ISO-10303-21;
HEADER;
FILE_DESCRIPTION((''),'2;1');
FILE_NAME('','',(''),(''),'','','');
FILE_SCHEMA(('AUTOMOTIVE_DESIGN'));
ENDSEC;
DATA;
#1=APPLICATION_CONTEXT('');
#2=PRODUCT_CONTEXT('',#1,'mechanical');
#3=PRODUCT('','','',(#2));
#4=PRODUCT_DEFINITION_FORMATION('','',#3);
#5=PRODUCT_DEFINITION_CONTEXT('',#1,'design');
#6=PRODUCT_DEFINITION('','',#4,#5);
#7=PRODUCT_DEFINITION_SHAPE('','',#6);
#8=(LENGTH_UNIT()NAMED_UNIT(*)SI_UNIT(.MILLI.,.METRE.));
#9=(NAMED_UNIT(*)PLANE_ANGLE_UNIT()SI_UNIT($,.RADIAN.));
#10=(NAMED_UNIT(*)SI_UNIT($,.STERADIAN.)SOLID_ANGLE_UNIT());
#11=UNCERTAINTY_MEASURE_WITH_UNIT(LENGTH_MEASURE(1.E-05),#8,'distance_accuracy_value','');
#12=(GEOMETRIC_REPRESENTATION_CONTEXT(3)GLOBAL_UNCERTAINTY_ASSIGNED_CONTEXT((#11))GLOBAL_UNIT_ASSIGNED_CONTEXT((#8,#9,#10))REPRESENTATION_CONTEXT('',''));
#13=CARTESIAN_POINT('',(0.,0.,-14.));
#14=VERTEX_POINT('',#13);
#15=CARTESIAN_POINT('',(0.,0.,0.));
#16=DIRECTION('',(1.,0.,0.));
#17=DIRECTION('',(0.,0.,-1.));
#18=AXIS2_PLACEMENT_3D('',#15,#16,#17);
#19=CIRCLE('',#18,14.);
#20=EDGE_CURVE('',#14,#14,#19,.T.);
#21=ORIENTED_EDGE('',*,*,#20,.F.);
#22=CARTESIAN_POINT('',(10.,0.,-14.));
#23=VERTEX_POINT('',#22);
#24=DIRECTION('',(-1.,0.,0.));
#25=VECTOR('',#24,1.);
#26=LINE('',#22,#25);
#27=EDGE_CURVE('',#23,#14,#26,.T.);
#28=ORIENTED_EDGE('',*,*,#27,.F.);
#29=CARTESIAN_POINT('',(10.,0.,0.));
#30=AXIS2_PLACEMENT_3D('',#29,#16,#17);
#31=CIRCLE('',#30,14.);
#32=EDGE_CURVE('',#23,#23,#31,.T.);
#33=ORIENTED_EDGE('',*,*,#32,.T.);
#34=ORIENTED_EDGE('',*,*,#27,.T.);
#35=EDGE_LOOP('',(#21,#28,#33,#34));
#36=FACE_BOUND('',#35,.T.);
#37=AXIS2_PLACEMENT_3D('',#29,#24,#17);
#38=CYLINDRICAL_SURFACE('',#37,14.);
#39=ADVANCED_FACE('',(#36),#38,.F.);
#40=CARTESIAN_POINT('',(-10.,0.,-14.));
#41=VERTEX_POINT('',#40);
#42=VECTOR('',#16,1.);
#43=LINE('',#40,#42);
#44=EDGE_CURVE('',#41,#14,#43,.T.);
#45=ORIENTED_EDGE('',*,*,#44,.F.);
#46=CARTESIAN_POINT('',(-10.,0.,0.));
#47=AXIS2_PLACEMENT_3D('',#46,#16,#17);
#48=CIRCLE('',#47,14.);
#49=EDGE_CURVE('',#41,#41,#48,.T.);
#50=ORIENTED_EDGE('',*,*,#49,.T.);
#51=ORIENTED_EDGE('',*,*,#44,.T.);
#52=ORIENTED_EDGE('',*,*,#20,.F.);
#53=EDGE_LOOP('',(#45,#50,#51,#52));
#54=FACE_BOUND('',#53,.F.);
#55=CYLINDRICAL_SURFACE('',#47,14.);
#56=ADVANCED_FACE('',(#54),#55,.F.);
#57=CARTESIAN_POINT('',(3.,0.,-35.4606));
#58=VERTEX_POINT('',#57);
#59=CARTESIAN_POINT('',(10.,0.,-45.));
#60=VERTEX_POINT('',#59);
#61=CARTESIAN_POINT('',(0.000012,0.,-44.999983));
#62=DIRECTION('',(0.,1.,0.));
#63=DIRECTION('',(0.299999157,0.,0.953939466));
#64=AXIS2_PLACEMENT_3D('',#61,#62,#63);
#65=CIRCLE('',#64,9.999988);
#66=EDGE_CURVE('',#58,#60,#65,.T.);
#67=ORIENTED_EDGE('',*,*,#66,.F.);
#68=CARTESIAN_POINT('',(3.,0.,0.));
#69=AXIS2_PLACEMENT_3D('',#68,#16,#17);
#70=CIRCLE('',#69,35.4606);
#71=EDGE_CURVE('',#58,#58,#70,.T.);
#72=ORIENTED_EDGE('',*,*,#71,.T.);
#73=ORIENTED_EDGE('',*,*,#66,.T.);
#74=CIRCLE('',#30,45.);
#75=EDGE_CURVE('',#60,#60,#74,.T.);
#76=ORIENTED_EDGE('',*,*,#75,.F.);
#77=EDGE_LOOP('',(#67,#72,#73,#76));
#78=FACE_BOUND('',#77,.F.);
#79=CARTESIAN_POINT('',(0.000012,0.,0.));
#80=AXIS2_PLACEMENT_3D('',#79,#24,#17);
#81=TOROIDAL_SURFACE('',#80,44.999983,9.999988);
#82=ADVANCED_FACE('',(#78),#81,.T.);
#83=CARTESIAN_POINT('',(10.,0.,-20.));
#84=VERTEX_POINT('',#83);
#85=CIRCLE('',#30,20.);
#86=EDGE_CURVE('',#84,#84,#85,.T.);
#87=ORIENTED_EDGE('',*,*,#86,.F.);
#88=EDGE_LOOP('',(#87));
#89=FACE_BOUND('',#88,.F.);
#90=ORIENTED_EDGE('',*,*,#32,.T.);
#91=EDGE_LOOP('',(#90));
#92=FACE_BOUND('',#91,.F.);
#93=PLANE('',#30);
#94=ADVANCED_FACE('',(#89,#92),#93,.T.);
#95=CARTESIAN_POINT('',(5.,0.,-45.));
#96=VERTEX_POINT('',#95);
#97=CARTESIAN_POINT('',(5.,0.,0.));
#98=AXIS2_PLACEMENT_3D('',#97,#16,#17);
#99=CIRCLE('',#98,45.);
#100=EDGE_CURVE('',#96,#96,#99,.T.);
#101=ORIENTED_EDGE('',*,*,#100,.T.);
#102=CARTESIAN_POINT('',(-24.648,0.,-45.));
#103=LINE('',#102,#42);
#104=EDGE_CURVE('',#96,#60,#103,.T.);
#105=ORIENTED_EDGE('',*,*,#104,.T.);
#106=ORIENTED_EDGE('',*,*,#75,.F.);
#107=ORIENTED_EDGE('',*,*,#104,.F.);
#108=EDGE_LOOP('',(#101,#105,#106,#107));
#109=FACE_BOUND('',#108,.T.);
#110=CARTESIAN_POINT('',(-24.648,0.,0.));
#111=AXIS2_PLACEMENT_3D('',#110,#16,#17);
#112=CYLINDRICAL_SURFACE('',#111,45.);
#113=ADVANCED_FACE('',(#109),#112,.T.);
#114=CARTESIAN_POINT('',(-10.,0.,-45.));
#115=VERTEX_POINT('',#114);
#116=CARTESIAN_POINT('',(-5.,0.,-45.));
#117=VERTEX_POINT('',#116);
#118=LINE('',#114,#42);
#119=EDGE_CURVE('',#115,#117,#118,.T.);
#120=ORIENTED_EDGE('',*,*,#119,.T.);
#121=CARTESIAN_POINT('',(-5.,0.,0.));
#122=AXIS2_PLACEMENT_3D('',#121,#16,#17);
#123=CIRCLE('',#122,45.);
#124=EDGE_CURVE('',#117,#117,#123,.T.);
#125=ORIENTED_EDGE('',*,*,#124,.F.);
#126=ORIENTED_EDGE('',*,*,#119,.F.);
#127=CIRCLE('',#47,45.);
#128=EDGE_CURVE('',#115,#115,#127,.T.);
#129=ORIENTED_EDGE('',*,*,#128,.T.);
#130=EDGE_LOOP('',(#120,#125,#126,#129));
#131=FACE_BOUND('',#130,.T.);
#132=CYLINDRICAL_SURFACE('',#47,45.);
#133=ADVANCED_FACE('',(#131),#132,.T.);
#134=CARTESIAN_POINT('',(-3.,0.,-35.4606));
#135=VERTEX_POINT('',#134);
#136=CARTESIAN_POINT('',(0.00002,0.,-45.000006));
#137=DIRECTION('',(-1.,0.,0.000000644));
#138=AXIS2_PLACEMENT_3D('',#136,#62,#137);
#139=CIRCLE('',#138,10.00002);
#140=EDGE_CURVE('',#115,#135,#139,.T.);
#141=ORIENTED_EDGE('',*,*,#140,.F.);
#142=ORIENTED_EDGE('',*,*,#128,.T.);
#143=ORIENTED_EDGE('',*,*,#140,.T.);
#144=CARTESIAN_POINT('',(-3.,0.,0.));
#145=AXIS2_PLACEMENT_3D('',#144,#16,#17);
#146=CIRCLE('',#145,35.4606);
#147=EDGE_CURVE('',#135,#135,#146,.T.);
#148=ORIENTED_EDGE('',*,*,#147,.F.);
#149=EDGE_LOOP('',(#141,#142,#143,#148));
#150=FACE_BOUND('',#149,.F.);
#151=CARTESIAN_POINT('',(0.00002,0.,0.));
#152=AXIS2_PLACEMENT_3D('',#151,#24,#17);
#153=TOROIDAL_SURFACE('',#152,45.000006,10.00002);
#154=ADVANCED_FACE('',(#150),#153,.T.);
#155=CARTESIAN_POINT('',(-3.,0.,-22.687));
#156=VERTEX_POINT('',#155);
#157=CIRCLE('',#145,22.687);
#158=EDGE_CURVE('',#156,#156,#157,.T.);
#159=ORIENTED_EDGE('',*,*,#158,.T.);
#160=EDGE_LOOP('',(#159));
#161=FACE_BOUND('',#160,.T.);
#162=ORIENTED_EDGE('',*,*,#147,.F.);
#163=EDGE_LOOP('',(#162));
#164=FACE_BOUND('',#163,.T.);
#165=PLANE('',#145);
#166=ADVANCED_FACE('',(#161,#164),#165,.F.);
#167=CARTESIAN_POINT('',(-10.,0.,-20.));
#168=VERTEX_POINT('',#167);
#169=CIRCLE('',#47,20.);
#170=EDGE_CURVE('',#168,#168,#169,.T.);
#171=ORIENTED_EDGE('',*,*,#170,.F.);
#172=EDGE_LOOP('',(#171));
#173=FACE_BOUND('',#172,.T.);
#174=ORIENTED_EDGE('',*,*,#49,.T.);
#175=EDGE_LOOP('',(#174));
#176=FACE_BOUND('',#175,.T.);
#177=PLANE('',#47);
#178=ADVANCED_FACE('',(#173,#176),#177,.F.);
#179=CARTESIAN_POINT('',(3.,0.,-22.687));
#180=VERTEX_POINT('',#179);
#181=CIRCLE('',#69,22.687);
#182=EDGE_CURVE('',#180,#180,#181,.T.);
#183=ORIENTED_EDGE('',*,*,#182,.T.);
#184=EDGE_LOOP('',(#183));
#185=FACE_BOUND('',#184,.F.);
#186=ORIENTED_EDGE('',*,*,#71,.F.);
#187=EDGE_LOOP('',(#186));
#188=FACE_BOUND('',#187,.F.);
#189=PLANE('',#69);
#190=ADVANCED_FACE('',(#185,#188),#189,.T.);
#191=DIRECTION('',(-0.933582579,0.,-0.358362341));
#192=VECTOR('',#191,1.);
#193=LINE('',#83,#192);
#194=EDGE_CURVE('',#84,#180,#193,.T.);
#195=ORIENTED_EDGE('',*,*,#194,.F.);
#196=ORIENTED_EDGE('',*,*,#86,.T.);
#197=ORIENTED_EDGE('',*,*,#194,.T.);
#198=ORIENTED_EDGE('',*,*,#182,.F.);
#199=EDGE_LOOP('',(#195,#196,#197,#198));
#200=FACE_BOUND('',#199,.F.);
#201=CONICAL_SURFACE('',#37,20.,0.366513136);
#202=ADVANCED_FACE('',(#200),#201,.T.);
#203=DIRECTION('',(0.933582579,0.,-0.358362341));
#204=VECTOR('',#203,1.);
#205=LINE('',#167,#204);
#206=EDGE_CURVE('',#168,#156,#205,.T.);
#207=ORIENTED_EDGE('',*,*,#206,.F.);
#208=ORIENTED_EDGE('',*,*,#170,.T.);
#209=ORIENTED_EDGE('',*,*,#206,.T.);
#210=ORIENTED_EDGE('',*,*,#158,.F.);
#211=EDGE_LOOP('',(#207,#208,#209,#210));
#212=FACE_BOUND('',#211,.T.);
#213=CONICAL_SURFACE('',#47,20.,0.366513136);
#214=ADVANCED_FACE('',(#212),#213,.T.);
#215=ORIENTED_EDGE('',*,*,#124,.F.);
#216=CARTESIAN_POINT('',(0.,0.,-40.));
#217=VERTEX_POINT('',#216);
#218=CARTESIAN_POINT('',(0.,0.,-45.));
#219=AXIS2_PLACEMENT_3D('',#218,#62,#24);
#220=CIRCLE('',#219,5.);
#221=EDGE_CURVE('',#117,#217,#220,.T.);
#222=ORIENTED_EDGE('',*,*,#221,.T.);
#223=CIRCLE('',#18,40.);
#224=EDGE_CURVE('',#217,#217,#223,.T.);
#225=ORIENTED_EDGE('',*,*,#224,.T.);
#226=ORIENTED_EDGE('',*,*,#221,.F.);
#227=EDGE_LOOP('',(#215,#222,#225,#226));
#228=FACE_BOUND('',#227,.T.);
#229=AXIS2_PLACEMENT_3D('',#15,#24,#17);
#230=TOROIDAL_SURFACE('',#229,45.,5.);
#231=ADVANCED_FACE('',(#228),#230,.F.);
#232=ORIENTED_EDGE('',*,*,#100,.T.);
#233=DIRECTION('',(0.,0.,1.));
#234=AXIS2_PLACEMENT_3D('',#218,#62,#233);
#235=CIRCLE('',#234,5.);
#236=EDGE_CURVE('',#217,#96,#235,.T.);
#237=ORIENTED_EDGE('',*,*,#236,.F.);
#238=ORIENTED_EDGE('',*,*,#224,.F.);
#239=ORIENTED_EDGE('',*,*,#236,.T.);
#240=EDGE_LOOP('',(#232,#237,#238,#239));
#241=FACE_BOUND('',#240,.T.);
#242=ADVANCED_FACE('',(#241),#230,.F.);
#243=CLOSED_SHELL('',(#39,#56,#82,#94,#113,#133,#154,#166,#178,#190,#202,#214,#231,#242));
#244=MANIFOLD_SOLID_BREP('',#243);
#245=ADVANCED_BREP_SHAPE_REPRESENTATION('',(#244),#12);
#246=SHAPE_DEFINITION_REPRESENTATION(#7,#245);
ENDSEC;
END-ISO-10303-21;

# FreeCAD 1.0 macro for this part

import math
import FreeCAD as App
import Part
import Sketcher
Q = App.Units.Quantity

doc = App.newDocument("Part")
body = doc.addObject("PartDesign::Body", "Body")

sketch1 = body.newObject("Sketcher::SketchObject", "Sketch")
sketch1.AttachmentSupport = (doc.getObject("XZ_Plane"), [""])
sketch1.MapMode = "FlatFace"
sketch1.addGeometry([
    Part.LineSegment(App.Vector(-10, -20, 0), App.Vector(-10, -14, 0)),
    Part.LineSegment(App.Vector(-10, -14, 0), App.Vector(10, -14, 0)),
    Part.LineSegment(App.Vector(10, -14, 0), App.Vector(10, -20, 0)),
    Part.LineSegment(App.Vector(10, -20, 0), App.Vector(3, -22.687, 0)),
    Part.LineSegment(App.Vector(3, -22.687, 0), App.Vector(3, -35.4606, 0)),
    Part.ArcOfCircle(Part.Circle(App.Vector(0, -45, 0), App.Vector(0, 0, 1), 10), math.radians(0), math.radians(72.542411)),
    Part.LineSegment(App.Vector(10, -45, 0), App.Vector(5, -45, 0)),
    Part.ArcOfCircle(Part.Circle(App.Vector(0, -45, 0), App.Vector(0, 0, 1), 5), math.radians(0), math.radians(180)),
    Part.LineSegment(App.Vector(-5, -45, 0), App.Vector(-10, -45, 0)),
    Part.ArcOfCircle(Part.Circle(App.Vector(0, -45, 0), App.Vector(0, 0, 1), 10.000008), math.radians(107.457589), math.radians(180)),
    Part.LineSegment(App.Vector(-3, -35.4606, 0), App.Vector(-3, -22.687, 0)),
    Part.LineSegment(App.Vector(-3, -22.687, 0), App.Vector(-10, -20, 0)),
], False)
sketch1.addConstraint([
    Sketcher.Constraint("Coincident", 0, 2, 1, 1),
    Sketcher.Constraint("Coincident", 1, 2, 2, 1),
    Sketcher.Constraint("Coincident", 2, 2, 3, 1),
    Sketcher.Constraint("Coincident", 3, 2, 4, 1),
    Sketcher.Constraint("Coincident", 4, 2, 5, 2),
    Sketcher.Constraint("Coincident", 5, 1, 6, 1),
    Sketcher.Constraint("Coincident", 6, 2, 7, 1),
    Sketcher.Constraint("Coincident", 7, 2, 8, 1),
    Sketcher.Constraint("Coincident", 8, 2, 9, 2),
    Sketcher.Constraint("Coincident", 9, 1, 10, 1),
    Sketcher.Constraint("Coincident", 10, 2, 11, 1),
    Sketcher.Constraint("Coincident", 11, 2, 0, 1),
    Sketcher.Constraint("Vertical", 0),
    Sketcher.Constraint("Horizontal", 1),
    Sketcher.Constraint("Vertical", 2),
    Sketcher.Constraint("Vertical", 4),
    Sketcher.Constraint("Horizontal", 6),
    Sketcher.Constraint("Horizontal", 8),
    Sketcher.Constraint("Vertical", 10),
    Sketcher.Constraint("Coincident", 7, 3, 5, 3),
    Sketcher.Constraint("Coincident", 9, 3, 5, 3),
    Sketcher.Constraint("Equal", 5, 9),
    Sketcher.Constraint("Symmetric", 6, 2, 7, 2, -2),
    Sketcher.Constraint("Symmetric", 3, 2, 10, 2, -2),
    Sketcher.Constraint("Symmetric", 2, 2, 11, 2, -2),
    Sketcher.Constraint("Horizontal", 9, 3, 5, 1),
    Sketcher.Constraint("Vertical", 2, 2, 5, 1),
    Sketcher.Constraint("Radius", 5, Q("10 mm")),
    Sketcher.Constraint("Radius", 7, Q("5 mm")),
    Sketcher.Constraint("DistanceY", 0, 1, 0, 2, Q("6 mm")),
    Sketcher.Constraint("DistanceX", 9, 1, 4, 2, Q("6 mm")),
    Sketcher.Constraint("Angle", 3, Q("-159.0003 deg")),
    Sketcher.Constraint("DistanceY", 5, 3, -1, 1, Q("45 mm")),
    Sketcher.Constraint("DistanceY", 0, 2, -1, 1, Q("14 mm")),
])
revolution = body.newObject("PartDesign::Revolution", "Revolution")
revolution.Profile = sketch1
revolution.ReferenceAxis = (sketch1, ["H_Axis"])
revolution.Angle = 360

doc.recompute()
